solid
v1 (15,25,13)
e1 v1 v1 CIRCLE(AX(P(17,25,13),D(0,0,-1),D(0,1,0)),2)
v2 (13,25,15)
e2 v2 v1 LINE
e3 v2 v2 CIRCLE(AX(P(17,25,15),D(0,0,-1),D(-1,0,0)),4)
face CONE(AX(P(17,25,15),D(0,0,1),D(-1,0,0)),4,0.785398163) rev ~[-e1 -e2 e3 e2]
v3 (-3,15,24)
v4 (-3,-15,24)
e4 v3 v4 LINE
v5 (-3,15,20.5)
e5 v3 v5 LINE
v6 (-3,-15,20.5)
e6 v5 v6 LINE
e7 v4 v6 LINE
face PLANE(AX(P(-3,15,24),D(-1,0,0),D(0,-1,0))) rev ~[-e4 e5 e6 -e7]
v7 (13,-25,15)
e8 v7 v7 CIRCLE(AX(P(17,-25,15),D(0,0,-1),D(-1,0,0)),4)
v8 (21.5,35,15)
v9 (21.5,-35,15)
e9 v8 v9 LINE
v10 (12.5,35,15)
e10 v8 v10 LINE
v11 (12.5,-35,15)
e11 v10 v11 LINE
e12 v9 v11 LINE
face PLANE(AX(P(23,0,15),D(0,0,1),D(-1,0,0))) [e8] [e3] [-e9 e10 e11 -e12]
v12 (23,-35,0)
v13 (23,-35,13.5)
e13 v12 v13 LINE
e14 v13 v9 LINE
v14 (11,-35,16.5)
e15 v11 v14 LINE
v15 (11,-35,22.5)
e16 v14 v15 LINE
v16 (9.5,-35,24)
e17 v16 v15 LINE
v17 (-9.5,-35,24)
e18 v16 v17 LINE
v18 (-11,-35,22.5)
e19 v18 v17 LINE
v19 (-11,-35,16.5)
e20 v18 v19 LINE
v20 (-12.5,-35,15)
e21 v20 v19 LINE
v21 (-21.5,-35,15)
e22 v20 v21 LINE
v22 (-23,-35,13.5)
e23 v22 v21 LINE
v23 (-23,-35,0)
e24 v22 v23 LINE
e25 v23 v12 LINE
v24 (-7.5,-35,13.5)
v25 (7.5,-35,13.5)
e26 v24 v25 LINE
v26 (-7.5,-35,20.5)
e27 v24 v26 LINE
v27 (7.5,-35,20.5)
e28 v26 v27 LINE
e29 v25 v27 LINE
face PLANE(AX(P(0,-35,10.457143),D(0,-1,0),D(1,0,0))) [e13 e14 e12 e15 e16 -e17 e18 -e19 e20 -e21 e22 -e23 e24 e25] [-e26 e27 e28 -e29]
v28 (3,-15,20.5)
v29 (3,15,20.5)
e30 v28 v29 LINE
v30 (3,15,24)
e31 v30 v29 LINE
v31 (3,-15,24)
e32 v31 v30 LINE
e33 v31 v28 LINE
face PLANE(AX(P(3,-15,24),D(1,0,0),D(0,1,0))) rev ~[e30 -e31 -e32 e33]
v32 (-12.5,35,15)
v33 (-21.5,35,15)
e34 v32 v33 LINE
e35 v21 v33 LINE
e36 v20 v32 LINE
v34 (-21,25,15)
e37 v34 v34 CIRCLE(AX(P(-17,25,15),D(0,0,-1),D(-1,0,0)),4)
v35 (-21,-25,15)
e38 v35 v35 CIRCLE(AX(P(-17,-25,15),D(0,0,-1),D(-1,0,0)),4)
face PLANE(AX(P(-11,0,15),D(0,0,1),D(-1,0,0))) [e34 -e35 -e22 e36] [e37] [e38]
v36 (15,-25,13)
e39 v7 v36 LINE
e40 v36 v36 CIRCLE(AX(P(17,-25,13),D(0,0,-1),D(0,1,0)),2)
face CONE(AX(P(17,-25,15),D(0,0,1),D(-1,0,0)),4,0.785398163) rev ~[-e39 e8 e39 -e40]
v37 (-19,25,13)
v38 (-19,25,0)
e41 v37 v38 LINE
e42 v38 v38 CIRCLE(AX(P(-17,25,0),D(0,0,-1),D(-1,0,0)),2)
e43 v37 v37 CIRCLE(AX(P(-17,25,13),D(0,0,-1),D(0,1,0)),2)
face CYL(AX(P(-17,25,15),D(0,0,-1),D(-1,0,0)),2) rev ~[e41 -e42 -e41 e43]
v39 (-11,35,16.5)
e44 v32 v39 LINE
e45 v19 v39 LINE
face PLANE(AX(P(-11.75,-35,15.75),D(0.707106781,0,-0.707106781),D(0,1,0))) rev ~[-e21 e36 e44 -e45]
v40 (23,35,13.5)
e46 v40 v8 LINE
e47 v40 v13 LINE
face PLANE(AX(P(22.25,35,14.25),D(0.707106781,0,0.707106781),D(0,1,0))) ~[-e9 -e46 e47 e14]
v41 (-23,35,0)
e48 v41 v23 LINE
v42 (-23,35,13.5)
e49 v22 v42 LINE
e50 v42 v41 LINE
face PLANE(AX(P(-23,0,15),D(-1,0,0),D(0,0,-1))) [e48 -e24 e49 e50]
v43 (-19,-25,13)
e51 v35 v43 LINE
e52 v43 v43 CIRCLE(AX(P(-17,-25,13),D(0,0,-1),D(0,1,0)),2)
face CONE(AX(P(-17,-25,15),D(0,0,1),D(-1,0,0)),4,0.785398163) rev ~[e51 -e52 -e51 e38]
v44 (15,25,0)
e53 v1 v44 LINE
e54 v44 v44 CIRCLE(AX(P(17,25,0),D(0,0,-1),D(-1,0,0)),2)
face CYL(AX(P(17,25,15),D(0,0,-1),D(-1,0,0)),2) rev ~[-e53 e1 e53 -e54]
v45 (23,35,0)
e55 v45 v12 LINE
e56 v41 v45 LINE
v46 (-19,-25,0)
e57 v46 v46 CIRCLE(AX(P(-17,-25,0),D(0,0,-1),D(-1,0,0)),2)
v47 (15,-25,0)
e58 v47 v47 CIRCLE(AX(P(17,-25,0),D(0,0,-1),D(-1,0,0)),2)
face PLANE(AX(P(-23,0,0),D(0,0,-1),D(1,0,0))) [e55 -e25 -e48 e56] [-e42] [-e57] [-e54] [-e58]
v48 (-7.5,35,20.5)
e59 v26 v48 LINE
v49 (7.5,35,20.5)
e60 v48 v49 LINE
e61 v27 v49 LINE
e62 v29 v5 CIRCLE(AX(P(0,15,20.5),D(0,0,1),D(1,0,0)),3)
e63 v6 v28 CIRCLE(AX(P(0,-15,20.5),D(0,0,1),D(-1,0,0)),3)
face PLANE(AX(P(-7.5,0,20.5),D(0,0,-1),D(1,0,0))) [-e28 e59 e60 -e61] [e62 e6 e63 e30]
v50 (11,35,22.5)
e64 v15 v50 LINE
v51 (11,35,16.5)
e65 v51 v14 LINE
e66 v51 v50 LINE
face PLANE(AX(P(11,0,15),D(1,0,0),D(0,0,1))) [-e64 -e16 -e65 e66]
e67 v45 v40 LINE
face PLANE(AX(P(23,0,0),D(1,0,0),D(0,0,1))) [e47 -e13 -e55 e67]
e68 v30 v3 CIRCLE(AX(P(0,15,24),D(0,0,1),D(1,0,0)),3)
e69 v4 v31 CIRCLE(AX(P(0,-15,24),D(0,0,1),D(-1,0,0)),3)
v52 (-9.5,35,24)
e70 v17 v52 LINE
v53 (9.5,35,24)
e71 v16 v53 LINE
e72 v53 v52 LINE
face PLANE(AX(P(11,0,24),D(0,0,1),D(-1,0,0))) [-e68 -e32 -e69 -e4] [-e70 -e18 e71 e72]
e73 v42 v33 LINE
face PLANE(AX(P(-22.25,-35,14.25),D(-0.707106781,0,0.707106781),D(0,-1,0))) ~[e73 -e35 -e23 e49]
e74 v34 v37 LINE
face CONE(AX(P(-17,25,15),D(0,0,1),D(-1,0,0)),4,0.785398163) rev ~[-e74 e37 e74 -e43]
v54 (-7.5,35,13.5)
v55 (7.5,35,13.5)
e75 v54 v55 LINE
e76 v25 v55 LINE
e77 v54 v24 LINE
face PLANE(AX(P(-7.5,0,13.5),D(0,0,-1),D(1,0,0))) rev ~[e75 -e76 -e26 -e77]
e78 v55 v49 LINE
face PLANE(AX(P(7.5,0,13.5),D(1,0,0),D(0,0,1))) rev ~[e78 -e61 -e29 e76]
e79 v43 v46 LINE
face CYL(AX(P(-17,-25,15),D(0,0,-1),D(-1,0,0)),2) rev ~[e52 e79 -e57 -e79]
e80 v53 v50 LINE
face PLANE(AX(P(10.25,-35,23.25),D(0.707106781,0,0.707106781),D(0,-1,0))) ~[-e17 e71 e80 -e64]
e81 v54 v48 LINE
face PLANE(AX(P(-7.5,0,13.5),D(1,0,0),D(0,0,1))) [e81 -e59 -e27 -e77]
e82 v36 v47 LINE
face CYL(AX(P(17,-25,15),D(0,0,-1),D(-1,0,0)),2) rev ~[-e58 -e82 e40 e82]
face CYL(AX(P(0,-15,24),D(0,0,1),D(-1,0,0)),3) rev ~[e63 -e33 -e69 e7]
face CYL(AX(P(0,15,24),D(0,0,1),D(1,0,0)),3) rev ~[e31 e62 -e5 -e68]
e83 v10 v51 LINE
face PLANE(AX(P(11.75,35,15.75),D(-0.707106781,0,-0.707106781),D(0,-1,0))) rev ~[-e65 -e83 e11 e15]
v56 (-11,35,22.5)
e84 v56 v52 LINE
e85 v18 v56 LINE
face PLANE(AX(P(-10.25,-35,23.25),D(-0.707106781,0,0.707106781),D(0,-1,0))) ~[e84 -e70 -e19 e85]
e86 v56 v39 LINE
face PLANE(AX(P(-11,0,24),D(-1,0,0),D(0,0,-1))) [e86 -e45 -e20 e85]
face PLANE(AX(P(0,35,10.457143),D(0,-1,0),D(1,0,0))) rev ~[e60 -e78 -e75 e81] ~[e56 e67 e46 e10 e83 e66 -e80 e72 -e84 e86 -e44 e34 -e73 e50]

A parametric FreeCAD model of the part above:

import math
import FreeCAD as App
import Part
import Sketcher


def edges_at(feature, points):
    """Names of the edges that pass closest to the given points."""
    edges = feature.Shape.Edges
    near = lambda p: min(range(len(edges)), key=lambda i: edges[i].distToShape(Part.Vertex(*p))[0])
    return sorted({f"Edge{near(p) + 1}" for p in points})


def add_polygon(sketch, points):
    """Adds a closed chain of lines whose ends are joined by coincident constraints."""
    first, n = sketch.GeometryCount, len(points)
    for a, b in zip(points, points[1:] + points[:1]):
        sketch.addGeometry(Part.LineSegment(App.Vector(*a, 0), App.Vector(*b, 0)), False)
    for i in range(n):
        sketch.addConstraint(Sketcher.Constraint("Coincident", first + i, 2, first + (i + 1) % n, 1))

doc = App.newDocument("Part")
body = doc.addObject("PartDesign::Body", "Body")

# Sketch on XZ plane
sketch1 = doc.addObject("Sketcher::SketchObject", "Sketch")
body.addObject(sketch1)
sketch1.AttachmentSupport = (doc.XZ_Plane, [""])
sketch1.MapMode = "FlatFace"
add_polygon(sketch1, [(-23, 15), (-23, 0), (23, 0), (23, 15), (11, 15), (11, 24), (-11, 24), (-11, 15)])  # lines 0-7
add_polygon(sketch1, [(8, 14), (-8, 14), (-8, 20), (8, 20)])  # lines 8-11
sketch1.addConstraint(Sketcher.Constraint("Vertical", 0))
sketch1.addConstraint(Sketcher.Constraint("Horizontal", 1))
sketch1.addConstraint(Sketcher.Constraint("Vertical", 2))
sketch1.addConstraint(Sketcher.Constraint("Horizontal", 3))
sketch1.addConstraint(Sketcher.Constraint("Vertical", 4))
sketch1.addConstraint(Sketcher.Constraint("Horizontal", 5))
sketch1.addConstraint(Sketcher.Constraint("Vertical", 6))
sketch1.addConstraint(Sketcher.Constraint("Horizontal", 7))
sketch1.addConstraint(Sketcher.Constraint("Horizontal", 8))
sketch1.addConstraint(Sketcher.Constraint("Vertical", 9))
sketch1.addConstraint(Sketcher.Constraint("Horizontal", 10))
sketch1.addConstraint(Sketcher.Constraint("Vertical", 11))
sketch1.addConstraint(Sketcher.Constraint("Symmetric", 0, 2, 1, 2, -1, 1))
sketch1.addConstraint(Sketcher.Constraint("Symmetric", 3, 2, 6, 2, -2))
sketch1.addConstraint(Sketcher.Constraint("Equal", 10, 0))
sketch1.addConstraint(Sketcher.Constraint("DistanceX", 1, 1, 1, 2, 46.0))
sketch1.addConstraint(Sketcher.Constraint("DistanceX", 3, 2, 3, 1, 12.0))
sketch1.addConstraint(Sketcher.Constraint("DistanceX", 8, 2, 8, 1, 15.0))
sketch1.addConstraint(Sketcher.Constraint("DistanceY", 4, 1, 4, 2, 9.0))
sketch1.addConstraint(Sketcher.Constraint("DistanceY", 9, 1, 9, 2, 7.0))
sketch1.addConstraint(Sketcher.Constraint("DistanceX", 8, 2, -1, 1, 7.5))
sketch1.addConstraint(Sketcher.Constraint("DistanceY", -1, 1, 8, 2, 13.5))
pad1 = doc.addObject("PartDesign::Pad", "Pad")
body.addObject(pad1)
pad1.Profile = sketch1
pad1.Length = 70
pad1.Midplane = True

# Sketch on XY plane
sketch2 = doc.addObject("Sketcher::SketchObject", "Sketch001")
body.addObject(sketch2)
sketch2.AttachmentSupport = (doc.XY_Plane, [""])
sketch2.MapMode = "FlatFace"
sketch2.AttachmentOffset = App.Placement(App.Vector(0, 0, 24), App.Rotation())
sketch2.addGeometry(Part.ArcOfCircle(Part.Circle(App.Vector(0, 15, 0), App.Vector(0, 0, 1), 3), math.radians(0), math.radians(180)), False)
sketch2.addGeometry(Part.LineSegment(App.Vector(-3, 15, 0), App.Vector(-3, -15, 0)), False)
sketch2.addGeometry(Part.ArcOfCircle(Part.Circle(App.Vector(0, -15, 0), App.Vector(0, 0, 1), 3), math.radians(180), math.radians(360)), False)
sketch2.addGeometry(Part.LineSegment(App.Vector(3, -15, 0), App.Vector(3, 15, 0)), False)
sketch2.addConstraint(Sketcher.Constraint("Tangent", 0, 2, 1, 1))
sketch2.addConstraint(Sketcher.Constraint("Tangent", 1, 2, 2, 1))
sketch2.addConstraint(Sketcher.Constraint("Tangent", 2, 2, 3, 1))
sketch2.addConstraint(Sketcher.Constraint("Tangent", 3, 2, 0, 1))
sketch2.addConstraint(Sketcher.Constraint("Vertical", 1))
sketch2.addConstraint(Sketcher.Constraint("Vertical", 3))
sketch2.addConstraint(Sketcher.Constraint("Symmetric", 0, 3, 2, 3, -1, 1))
sketch2.addConstraint(Sketcher.Constraint("Radius", 0, 3.0))
sketch2.addConstraint(Sketcher.Constraint("DistanceY", 1, 2, 1, 1, 30.0))
pocket1 = doc.addObject("PartDesign::Pocket", "Pocket")
body.addObject(pocket1)
pocket1.Profile = sketch2
pocket1.Length = 3.5
doc.recompute()

chamfer = doc.addObject("PartDesign::Chamfer", "Chamfer")
body.addObject(chamfer)
chamfer.Base = (pocket1, edges_at(pocket1, [
    (-11, 0, 15),
    (11, 0, 24),
    (-11, 0, 24),
    (11, 0, 15),
    (-23, 0, 15),
    (23, 0, 15),
]))
chamfer.Size = 1.5

# Sketch on XY plane
sketch3 = doc.addObject("Sketcher::SketchObject", "Sketch002")
body.addObject(sketch3)
sketch3.AttachmentSupport = (doc.XY_Plane, [""])
sketch3.MapMode = "FlatFace"
sketch3.AttachmentOffset = App.Placement(App.Vector(0, 0, 15), App.Rotation())
sketch3.addGeometry(Part.Circle(App.Vector(17, 25, 0), App.Vector(0, 0, 1), 2), False)
sketch3.addGeometry(Part.Circle(App.Vector(17, -25, 0), App.Vector(0, 0, 1), 2), False)
sketch3.addGeometry(Part.Circle(App.Vector(-17, -25, 0), App.Vector(0, 0, 1), 2), False)
sketch3.addGeometry(Part.Circle(App.Vector(-17, 25, 0), App.Vector(0, 0, 1), 2), False)
sketch3.addConstraint(Sketcher.Constraint("Equal", 0, 1))
sketch3.addConstraint(Sketcher.Constraint("Equal", 1, 2))
sketch3.addConstraint(Sketcher.Constraint("Equal", 2, 3))
sketch3.addConstraint(Sketcher.Constraint("Symmetric", 0, 3, 2, 3, -1, 1))
sketch3.addConstraint(Sketcher.Constraint("Symmetric", 1, 3, 3, 3, -1, 1))
sketch3.addConstraint(Sketcher.Constraint("Symmetric", 1, 3, 2, 3, -2))
sketch3.addConstraint(Sketcher.Constraint("Diameter", 0, 4.0))
sketch3.addConstraint(Sketcher.Constraint("DistanceX", -1, 1, 0, 3, 17.0))
sketch3.addConstraint(Sketcher.Constraint("DistanceY", -1, 1, 0, 3, 25.0))
doc.recompute()
hole = doc.addObject("PartDesign::Hole", "Hole")
body.addObject(hole)
hole.Profile = sketch3
hole.ThreadType = "None"
hole.Diameter = 4
hole.DepthType = "ThroughAll"
hole.HoleCutType = "Countersink"
hole.HoleCutDiameter = 8
hole.HoleCutCountersinkAngle = 90

doc.recompute()
